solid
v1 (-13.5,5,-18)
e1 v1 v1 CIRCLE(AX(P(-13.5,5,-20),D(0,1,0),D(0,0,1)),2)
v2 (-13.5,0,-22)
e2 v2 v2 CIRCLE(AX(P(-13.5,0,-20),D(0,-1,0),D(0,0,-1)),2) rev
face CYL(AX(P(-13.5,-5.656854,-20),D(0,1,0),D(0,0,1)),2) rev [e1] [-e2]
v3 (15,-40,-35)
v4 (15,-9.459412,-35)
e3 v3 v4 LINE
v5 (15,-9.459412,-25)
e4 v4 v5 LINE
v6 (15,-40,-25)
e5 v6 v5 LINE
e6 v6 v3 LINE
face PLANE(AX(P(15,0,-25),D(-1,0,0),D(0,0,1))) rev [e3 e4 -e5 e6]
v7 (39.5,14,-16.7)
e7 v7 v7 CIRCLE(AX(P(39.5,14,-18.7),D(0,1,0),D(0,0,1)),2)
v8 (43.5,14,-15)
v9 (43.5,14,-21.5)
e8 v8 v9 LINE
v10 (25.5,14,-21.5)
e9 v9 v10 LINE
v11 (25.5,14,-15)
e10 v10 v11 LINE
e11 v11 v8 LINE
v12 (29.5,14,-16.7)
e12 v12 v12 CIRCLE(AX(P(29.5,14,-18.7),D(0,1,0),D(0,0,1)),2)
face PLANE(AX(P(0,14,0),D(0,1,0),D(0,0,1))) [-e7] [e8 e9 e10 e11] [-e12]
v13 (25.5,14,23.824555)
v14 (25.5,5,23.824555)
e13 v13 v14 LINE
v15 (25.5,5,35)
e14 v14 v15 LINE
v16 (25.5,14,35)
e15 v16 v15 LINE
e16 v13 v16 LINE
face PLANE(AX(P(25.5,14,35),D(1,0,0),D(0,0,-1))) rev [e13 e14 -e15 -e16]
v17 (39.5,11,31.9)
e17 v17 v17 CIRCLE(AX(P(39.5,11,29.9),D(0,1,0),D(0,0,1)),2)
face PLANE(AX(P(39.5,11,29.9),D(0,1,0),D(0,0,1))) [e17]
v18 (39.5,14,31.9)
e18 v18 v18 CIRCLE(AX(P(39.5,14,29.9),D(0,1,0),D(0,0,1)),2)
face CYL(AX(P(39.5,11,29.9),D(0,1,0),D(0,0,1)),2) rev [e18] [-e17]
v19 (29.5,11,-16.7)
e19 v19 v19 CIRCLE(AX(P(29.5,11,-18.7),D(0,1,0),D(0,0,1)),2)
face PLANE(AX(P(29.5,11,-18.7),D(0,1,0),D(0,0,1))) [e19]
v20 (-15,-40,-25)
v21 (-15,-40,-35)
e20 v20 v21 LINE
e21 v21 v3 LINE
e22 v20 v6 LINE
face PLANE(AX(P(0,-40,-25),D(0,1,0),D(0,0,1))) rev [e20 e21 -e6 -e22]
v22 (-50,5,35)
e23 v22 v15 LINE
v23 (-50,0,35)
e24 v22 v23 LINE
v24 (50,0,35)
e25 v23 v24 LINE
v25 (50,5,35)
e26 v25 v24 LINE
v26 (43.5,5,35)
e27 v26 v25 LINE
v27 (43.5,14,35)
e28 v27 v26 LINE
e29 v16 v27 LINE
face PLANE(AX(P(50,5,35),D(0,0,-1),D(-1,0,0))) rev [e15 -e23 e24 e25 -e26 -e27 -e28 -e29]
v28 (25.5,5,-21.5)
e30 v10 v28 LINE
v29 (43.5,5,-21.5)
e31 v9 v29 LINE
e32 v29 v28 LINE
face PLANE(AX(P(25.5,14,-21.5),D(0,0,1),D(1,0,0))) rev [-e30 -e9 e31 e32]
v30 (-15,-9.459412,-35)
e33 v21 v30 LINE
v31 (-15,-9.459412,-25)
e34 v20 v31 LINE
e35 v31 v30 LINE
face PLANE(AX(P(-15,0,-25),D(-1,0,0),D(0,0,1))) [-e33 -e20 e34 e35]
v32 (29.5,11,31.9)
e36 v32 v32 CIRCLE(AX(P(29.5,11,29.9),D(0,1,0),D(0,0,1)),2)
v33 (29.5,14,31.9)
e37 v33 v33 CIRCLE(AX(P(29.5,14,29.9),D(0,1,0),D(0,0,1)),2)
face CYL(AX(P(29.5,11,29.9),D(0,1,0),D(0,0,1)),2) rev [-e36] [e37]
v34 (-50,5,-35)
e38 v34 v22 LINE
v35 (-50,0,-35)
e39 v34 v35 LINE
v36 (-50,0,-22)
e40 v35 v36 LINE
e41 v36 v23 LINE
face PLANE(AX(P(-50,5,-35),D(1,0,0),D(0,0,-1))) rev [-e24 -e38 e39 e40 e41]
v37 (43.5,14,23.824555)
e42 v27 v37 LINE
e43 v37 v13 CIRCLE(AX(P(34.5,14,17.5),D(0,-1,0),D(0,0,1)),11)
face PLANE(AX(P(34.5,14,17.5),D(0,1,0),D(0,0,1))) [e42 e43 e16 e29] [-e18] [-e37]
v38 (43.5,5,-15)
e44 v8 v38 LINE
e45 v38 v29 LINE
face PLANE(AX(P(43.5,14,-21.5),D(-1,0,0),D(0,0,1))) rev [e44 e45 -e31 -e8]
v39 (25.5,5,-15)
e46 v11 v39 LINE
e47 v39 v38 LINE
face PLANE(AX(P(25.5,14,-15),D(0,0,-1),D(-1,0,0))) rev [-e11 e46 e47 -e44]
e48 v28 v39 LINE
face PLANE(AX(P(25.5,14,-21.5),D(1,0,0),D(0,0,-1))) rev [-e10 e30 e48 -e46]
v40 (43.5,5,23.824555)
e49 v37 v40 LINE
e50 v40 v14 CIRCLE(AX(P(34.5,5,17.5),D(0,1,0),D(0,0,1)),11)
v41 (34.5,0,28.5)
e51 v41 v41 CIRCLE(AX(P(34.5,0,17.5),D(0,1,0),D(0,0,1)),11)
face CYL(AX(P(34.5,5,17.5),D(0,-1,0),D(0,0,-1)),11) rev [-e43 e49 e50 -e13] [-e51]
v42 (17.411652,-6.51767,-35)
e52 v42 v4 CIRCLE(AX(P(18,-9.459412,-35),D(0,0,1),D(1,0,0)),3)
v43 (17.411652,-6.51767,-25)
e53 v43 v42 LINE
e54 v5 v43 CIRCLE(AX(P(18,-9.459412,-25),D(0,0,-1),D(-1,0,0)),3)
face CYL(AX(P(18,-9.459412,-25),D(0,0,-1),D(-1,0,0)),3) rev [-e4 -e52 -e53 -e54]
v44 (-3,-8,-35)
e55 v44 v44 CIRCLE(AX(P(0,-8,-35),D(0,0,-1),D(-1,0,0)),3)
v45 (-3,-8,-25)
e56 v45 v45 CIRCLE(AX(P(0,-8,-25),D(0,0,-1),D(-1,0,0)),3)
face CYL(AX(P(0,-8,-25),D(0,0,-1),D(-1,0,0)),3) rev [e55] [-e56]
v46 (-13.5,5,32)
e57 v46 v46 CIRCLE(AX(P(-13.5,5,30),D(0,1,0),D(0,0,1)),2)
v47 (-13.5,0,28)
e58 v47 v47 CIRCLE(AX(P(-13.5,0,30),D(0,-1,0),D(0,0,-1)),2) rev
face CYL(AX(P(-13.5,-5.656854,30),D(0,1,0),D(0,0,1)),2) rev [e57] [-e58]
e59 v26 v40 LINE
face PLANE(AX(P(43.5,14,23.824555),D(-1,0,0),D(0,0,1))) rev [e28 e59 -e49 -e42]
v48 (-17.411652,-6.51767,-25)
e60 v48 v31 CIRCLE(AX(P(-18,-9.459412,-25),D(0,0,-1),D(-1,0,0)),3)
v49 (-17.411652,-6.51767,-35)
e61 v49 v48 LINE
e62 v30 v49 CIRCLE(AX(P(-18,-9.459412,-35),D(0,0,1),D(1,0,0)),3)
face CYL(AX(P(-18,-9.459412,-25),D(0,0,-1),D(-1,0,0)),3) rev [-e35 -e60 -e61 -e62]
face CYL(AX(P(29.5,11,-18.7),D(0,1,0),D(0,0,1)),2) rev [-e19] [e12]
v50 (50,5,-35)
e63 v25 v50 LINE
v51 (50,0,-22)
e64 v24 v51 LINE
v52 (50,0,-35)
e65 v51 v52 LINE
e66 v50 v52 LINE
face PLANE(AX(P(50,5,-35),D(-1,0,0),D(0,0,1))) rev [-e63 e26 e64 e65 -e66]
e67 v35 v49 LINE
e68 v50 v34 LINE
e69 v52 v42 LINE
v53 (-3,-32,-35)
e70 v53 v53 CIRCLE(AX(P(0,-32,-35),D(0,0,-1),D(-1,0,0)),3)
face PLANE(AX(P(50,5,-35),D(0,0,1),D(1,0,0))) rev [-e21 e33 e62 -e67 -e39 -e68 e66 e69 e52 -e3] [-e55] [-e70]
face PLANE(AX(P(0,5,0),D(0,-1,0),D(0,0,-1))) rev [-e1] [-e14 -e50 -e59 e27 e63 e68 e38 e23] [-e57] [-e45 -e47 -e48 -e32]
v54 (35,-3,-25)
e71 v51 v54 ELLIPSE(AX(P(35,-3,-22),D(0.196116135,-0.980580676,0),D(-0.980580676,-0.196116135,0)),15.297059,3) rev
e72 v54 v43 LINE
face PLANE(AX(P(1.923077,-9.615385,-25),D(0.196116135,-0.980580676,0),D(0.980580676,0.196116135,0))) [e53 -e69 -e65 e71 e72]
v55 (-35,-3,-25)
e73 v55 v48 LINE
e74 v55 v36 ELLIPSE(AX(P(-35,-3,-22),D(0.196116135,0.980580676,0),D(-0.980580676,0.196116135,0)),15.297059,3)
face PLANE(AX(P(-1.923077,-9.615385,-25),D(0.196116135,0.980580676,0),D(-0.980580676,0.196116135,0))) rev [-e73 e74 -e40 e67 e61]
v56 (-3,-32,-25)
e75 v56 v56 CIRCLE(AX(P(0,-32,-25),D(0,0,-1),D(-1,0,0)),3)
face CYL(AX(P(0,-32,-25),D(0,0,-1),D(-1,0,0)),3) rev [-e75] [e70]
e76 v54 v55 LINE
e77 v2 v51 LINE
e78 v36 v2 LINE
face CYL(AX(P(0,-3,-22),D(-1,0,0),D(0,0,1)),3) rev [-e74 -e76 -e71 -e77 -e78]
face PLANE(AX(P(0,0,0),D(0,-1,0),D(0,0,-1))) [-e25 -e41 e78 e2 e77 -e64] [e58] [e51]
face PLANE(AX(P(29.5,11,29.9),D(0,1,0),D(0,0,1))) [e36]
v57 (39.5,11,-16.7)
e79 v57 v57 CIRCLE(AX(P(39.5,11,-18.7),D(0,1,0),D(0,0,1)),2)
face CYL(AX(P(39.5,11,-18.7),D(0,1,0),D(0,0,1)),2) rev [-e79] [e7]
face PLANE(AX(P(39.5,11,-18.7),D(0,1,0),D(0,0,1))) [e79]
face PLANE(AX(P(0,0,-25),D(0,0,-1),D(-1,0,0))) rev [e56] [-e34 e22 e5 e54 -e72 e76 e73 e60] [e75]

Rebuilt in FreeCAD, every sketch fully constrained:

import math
import FreeCAD as App
import Part
import Sketcher

V = App.Vector


def edges_at(feature, points):
    """Names of the edges that pass closest to the given points."""
    edges = feature.Shape.Edges
    near = lambda p: min(range(len(edges)), key=lambda i: edges[i].distToShape(Part.Vertex(*p))[0])
    return sorted({f"Edge{near(p) + 1}" for p in points})


def add_polygon(sketch, points):
    """Adds a closed chain of lines whose ends are joined by coincident constraints."""
    first, n = sketch.GeometryCount, len(points)
    for a, b in zip(points, points[1:] + points[:1]):
        sketch.addGeometry(Part.LineSegment(App.Vector(*a, 0), App.Vector(*b, 0)), False)
    for i in range(n):
        sketch.addConstraint(Sketcher.Constraint("Coincident", first + i, 2, first + (i + 1) % n, 1))

doc = App.newDocument("Part")
params = doc.addObject("Spreadsheet::Sheet", "Params")
for row, (alias, value) in enumerate([
    ("sketch1_diameter", "22 mm"),
    ("sketch1_width", "100 mm"),
    ("sketch1_height", "70 mm"),
    ("pad1_length", "5 mm"),
    ("sketch2_radius", "11 mm"),
    ("sketch2_width", "18 mm"),
    ("sketch2_height", "6.5 mm"),
    ("pad2_length", "9 mm"),
    ("sketch3_diameter", "4 mm"),
    ("pocket1_length", "3 mm"),
    ("sketch4_diameter", "6 mm"),
    ("sketch4_width", "30 mm"),
    ("sketch4_width2", "100 mm"),
    ("sketch4_height", "33 mm"),
    ("pad3_length", "10 mm"),
    ("fillet_radius", "3 mm"),
    ("sketch5_diameter", "4 mm"),
    ("pocket2_length", "5 mm"),
], start=1):
    params.set(f"A{row}", alias)
    params.set(f"B{row}", "=" + value)
    params.setAlias(f"B{row}", alias)

body = doc.addObject("PartDesign::Body", "Body")

sketch1 = doc.addObject("Sketcher::SketchObject", "Sketch")
body.addObject(sketch1)
sketch1.AttachmentSupport = (doc.XZ_Plane, [""])
sketch1.MapMode = "FlatFace"
add_polygon(sketch1, [(-50, -35), (-50, 35), (50, 35), (50, -35)])
sketch1.addGeometry(Part.Circle(V(34, 18, 0), V(0, 0, 1), 11), False)
sketch1.addConstraint([
    Sketcher.Constraint("Vertical", 0),
    Sketcher.Constraint("Horizontal", 1),
    Sketcher.Constraint("Vertical", 2),
    Sketcher.Constraint("Horizontal", 3),
    Sketcher.Constraint("Symmetric", 0, 2, 2, 2, -1, 1),
    Sketcher.Constraint("Diameter", 4, 22.0),
    Sketcher.Constraint("DistanceX", 1, 1, 1, 2, 100.0),
    Sketcher.Constraint("DistanceY", 0, 1, 0, 2, 70.0),
    Sketcher.Constraint("DistanceX", -1, 1, 4, 3, 34.5),
    Sketcher.Constraint("DistanceY", -1, 1, 4, 3, 17.5),
])
sketch1.setExpression("Constraints[9]", "Params.sketch1_diameter")
sketch1.setExpression("Constraints[10]", "Params.sketch1_width")
sketch1.setExpression("Constraints[11]", "Params.sketch1_height")
pad1 = doc.addObject("PartDesign::Pad", "Pad")
body.addObject(pad1)
pad1.Profile = sketch1
pad1.setExpression("Length", "Params.pad1_length")
pad1.Reversed = True

sketch2 = doc.addObject("Sketcher::SketchObject", "Sketch001")
body.addObject(sketch2)
sketch2.AttachmentSupport = (doc.XZ_Plane, [""])
sketch2.MapMode = "FlatFace"
sketch2.AttachmentOffset = App.Placement(V(0, 0, -5), App.Rotation())
sketch2.addGeometry(Part.LineSegment(V(26, 24, 0), V(26, 35, 0)), False)
sketch2.addGeometry(Part.LineSegment(V(26, 35, 0), V(44, 35, 0)), False)
sketch2.addGeometry(Part.LineSegment(V(44, 35, 0), V(44, 24, 0)), False)
sketch2.addGeometry(Part.ArcOfCircle(Part.Circle(V(34, 18, 0), V(0, 0, 1), 11), math.radians(35), math.radians(145)), False)
add_polygon(sketch2, [(26, -22), (26, -15), (44, -15), (44, -22)])
sketch2.addConstraint([
    Sketcher.Constraint("Coincident", 0, 2, 1, 1),
    Sketcher.Constraint("Coincident", 1, 2, 2, 1),
    Sketcher.Constraint("Coincident", 2, 2, 3, 1),
    Sketcher.Constraint("Coincident", 3, 2, 0, 1),
    Sketcher.Constraint("Vertical", 0),
    Sketcher.Constraint("Horizontal", 1),
    Sketcher.Constraint("Vertical", 2),
    Sketcher.Constraint("Vertical", 4),
    Sketcher.Constraint("Horizontal", 5),
    Sketcher.Constraint("Vertical", 6),
    Sketcher.Constraint("Horizontal", 7),
    Sketcher.Constraint("Horizontal", 2, 2, 3, 2),
    Sketcher.Constraint("Vertical", 3, 2, 4, 2),
    Sketcher.Constraint("Vertical", 2, 2, 5, 2),
    Sketcher.Constraint("Radius", 3, 11.0),
    Sketcher.Constraint("DistanceX", 1, 1, 1, 2, 18.0),
    Sketcher.Constraint("DistanceY", 4, 1, 4, 2, 6.5),
    Sketcher.Constraint("DistanceY", -1, 1, 0, 2, 35.0),
    Sketcher.Constraint("DistanceY", 4, 2, -1, 1, 15.0),
    Sketcher.Constraint("DistanceY", 6, 2, 3, 3, 39.0),
    Sketcher.Constraint("DistanceX", -1, 1, 3, 3, 34.5),
])
sketch2.setExpression("Constraints[18]", "Params.sketch2_radius")
sketch2.setExpression("Constraints[19]", "Params.sketch2_width")
sketch2.setExpression("Constraints[20]", "Params.sketch2_height")
pad2 = doc.addObject("PartDesign::Pad", "Pad001")
body.addObject(pad2)
pad2.Profile = sketch2
pad2.setExpression("Length", "Params.pad2_length")
pad2.Reversed = True

sketch3 = doc.addObject("Sketcher::SketchObject", "Sketch002")
body.addObject(sketch3)
sketch3.AttachmentSupport = (doc.XZ_Plane, [""])
sketch3.MapMode = "FlatFace"
sketch3.AttachmentOffset = App.Placement(V(0, 0, -14), App.Rotation())
sketch3.addGeometry([
    Part.Circle(V(29.5, 29.9, 0), V(0, 0, 1), 2),
    Part.Circle(V(39.5, 29.9, 0), V(0, 0, 1), 2),
    Part.Circle(V(39.5, -18.7, 0), V(0, 0, 1), 2),
    Part.Circle(V(29.5, -18.7, 0), V(0, 0, 1), 2),
], False)
sketch3.addConstraint([
    Sketcher.Constraint("Equal", 0, 1),
    Sketcher.Constraint("Equal", 1, 2),
    Sketcher.Constraint("Equal", 2, 3),
    Sketcher.Constraint("Horizontal", 0, 3, 1, 3),
    Sketcher.Constraint("Horizontal", 2, 3, 3, 3),
    Sketcher.Constraint("Vertical", 1, 3, 2, 3),
    Sketcher.Constraint("Vertical", 0, 3, 3, 3),
    Sketcher.Constraint("Diameter", 0, 4.0),
    Sketcher.Constraint("DistanceX", 0, 3, 1, 3, 10.0),
    Sketcher.Constraint("DistanceX", -1, 1, 0, 3, 29.5),
    Sketcher.Constraint("DistanceY", -1, 1, 0, 3, 29.9),
    Sketcher.Constraint("DistanceY", 2, 3, -1, 1, 18.7),
])
sketch3.setExpression("Constraints[7]", "Params.sketch3_diameter")
pocket1 = doc.addObject("PartDesign::Pocket", "Pocket")
body.addObject(pocket1)
pocket1.Profile = sketch3
pocket1.setExpression("Length", "Params.pocket1_length")
pocket1.Reversed = True

sketch4 = doc.addObject("Sketcher::SketchObject", "Sketch003")
body.addObject(sketch4)
sketch4.AttachmentSupport = (doc.XY_Plane, [""])
sketch4.MapMode = "FlatFace"
sketch4.AttachmentOffset = App.Placement(V(0, 0, -35), App.Rotation())
add_polygon(sketch4, [(15, -40), (-15, -40), (-15, -7), (-50, 0), (50, 0), (15, -7)])
sketch4.addGeometry(Part.Circle(V(0, -32, 0), V(0, 0, 1), 3), False)
sketch4.addGeometry(Part.Circle(V(0, -8, 0), V(0, 0, 1), 3), False)
sketch4.addConstraint([
    Sketcher.Constraint("Horizontal", 0),
    Sketcher.Constraint("Vertical", 1),
    Sketcher.Constraint("Horizontal", 3),
    Sketcher.Constraint("Vertical", 5),
    Sketcher.Constraint("Equal", 6, 7),
    Sketcher.Constraint("Symmetric", 2, 2, 3, 2, -1, 1),
    Sketcher.Constraint("Symmetric", 1, 2, 4, 2, -2),
    Sketcher.Constraint("PointOnObject", 6, 3, -2),
    Sketcher.Constraint("PointOnObject", 7, 3, -2),
    Sketcher.Constraint("Diameter", 6, 6.0),
    Sketcher.Constraint("DistanceX", 0, 2, 0, 1, 30.0),
    Sketcher.Constraint("DistanceX", 3, 1, 3, 2, 100.0),
    Sketcher.Constraint("DistanceY", 1, 1, 1, 2, 33.0),
    Sketcher.Constraint("DistanceY", 6, 3, -1, 1, 32.0),
    Sketcher.Constraint("DistanceY", 7, 3, -1, 1, 8.0),
    Sketcher.Constraint("DistanceY", 0, 2, -1, 1, 40.0),
])
sketch4.setExpression("Constraints[15]", "Params.sketch4_diameter")
sketch4.setExpression("Constraints[16]", "Params.sketch4_width")
sketch4.setExpression("Constraints[17]", "Params.sketch4_width2")
sketch4.setExpression("Constraints[18]", "Params.sketch4_height")
pad3 = doc.addObject("PartDesign::Pad", "Pad002")
body.addObject(pad3)
pad3.Profile = sketch4
pad3.setExpression("Length", "Params.pad3_length")
doc.recompute()

fillet = doc.addObject("PartDesign::Fillet", "Fillet")
body.addObject(fillet)
fillet.Base = (pad3, edges_at(pad3, [(15, -7, -30), (-15, -7, -30), (0, 0, -25)]))
fillet.setExpression("Radius", "Params.fillet_radius")

sketch5 = doc.addObject("Sketcher::SketchObject", "Sketch004")
body.addObject(sketch5)
sketch5.AttachmentSupport = (doc.XZ_Plane, [""])
sketch5.MapMode = "FlatFace"
sketch5.AttachmentOffset = App.Placement(V(0, 0, -5), App.Rotation())
sketch5.addGeometry([
    Part.Circle(V(-13.5, 30, 0), V(0, 0, 1), 2),
    Part.Circle(V(-13.5, -20, 0), V(0, 0, 1), 2),
], False)
sketch5.addConstraint([
    Sketcher.Constraint("Equal", 0, 1),
    Sketcher.Constraint("Vertical", 0, 3, 1, 3),
    Sketcher.Constraint("Diameter", 0, 4.0),
    Sketcher.Constraint("DistanceY", -1, 1, 0, 3, 30.0),
    Sketcher.Constraint("DistanceY", 1, 3, -1, 1, 20.0),
    Sketcher.Constraint("DistanceX", 0, 3, -1, 1, 13.5),
])
sketch5.setExpression("Constraints[2]", "Params.sketch5_diameter")
pocket2 = doc.addObject("PartDesign::Pocket", "Pocket001")
body.addObject(pocket2)
pocket2.Profile = sketch5
pocket2.setExpression("Length", "Params.pocket2_length")
pocket2.Reversed = True

doc.recompute()
